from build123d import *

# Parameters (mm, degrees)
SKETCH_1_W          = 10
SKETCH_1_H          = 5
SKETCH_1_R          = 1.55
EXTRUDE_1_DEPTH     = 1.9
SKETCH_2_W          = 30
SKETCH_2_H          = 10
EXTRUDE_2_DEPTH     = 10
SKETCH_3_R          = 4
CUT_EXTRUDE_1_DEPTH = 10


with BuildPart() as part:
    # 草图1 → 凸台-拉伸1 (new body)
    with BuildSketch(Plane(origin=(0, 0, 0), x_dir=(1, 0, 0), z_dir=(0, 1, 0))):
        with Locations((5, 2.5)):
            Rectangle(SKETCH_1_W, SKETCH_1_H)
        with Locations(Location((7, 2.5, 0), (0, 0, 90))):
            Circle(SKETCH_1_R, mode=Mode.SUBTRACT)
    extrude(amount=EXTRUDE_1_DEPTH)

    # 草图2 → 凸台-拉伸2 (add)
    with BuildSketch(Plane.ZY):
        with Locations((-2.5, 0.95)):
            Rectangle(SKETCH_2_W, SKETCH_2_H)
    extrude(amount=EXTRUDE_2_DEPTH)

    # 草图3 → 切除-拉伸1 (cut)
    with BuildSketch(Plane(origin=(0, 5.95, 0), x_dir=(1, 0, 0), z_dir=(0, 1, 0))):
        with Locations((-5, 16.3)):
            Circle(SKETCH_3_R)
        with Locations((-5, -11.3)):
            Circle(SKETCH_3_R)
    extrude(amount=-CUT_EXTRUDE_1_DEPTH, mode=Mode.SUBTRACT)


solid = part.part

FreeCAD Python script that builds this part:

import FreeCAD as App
import Part
import Sketcher
Q = App.Units.Quantity


def add_polygon(sketch, points):
    """Adds a closed chain of lines whose ends are joined by coincident constraints."""
    first, n = sketch.GeometryCount, len(points)
    for a, b in zip(points, points[1:] + points[:1]):
        sketch.addGeometry(Part.LineSegment(App.Vector(*a, 0), App.Vector(*b, 0)), False)
    for i in range(n):
        sketch.addConstraint(Sketcher.Constraint("Coincident", first + i, 2, first + (i + 1) % n, 1))

doc = App.newDocument("Part")
body = doc.addObject("PartDesign::Body", "Body")

sketch1 = body.newObject("Sketcher::SketchObject", "Sketch")
sketch1.AttachmentSupport = (doc.getObject("XZ_Plane"), [""])
sketch1.MapMode = "FlatFace"
add_polygon(sketch1, [(0, -5), (0, 0), (10, 0), (10, -5)])
sketch1.addGeometry(Part.Circle(App.Vector(7, -2.5, 0), App.Vector(0, 0, 1), 1.6), False)
sketch1.addConstraint(Sketcher.Constraint("Vertical", 0))
sketch1.addConstraint(Sketcher.Constraint("Horizontal", 1))
sketch1.addConstraint(Sketcher.Constraint("Vertical", 2))
sketch1.addConstraint(Sketcher.Constraint("Horizontal", 3))
sketch1.addConstraint(Sketcher.Constraint("Coincident", 0, 2, -1, 1))
sketch1.addConstraint(Sketcher.Constraint("Diameter", 4, Q("3.1 mm")))
sketch1.addConstraint(Sketcher.Constraint("DistanceX", 1, 1, 1, 2, Q("10 mm")))
sketch1.addConstraint(Sketcher.Constraint("DistanceY", 0, 1, 0, 2, Q("5 mm")))
sketch1.addConstraint(Sketcher.Constraint("DistanceX", -1, 1, 4, 3, Q("7 mm")))
sketch1.addConstraint(Sketcher.Constraint("DistanceY", 4, 3, -1, 1, Q("2.5 mm")))
pad1 = body.newObject("PartDesign::Pad", "Pad")
pad1.Profile = sketch1
pad1.Length = 1.9
pad1.Reversed = True

sketch2 = body.newObject("Sketcher::SketchObject", "Sketch001")
sketch2.AttachmentSupport = (doc.getObject("YZ_Plane"), [""])
sketch2.MapMode = "FlatFace"
add_polygon(sketch2, [(6, -18), (-4, -18), (-4, 12), (6, 12)])
sketch2.addConstraint(Sketcher.Constraint("Horizontal", 0))
sketch2.addConstraint(Sketcher.Constraint("Vertical", 1))
sketch2.addConstraint(Sketcher.Constraint("Horizontal", 2))
sketch2.addConstraint(Sketcher.Constraint("Vertical", 3))
sketch2.addConstraint(Sketcher.Constraint("DistanceX", 0, 2, 0, 1, Q("10 mm")))
sketch2.addConstraint(Sketcher.Constraint("DistanceY", 1, 1, 1, 2, Q("30 mm")))
sketch2.addConstraint(Sketcher.Constraint("DistanceY", 0, 2, -1, 1, Q("17.5 mm")))
sketch2.addConstraint(Sketcher.Constraint("DistanceX", 0, 2, -1, 1, Q("4.05 mm")))
pad2 = body.newObject("PartDesign::Pad", "Pad001")
pad2.Profile = sketch2
pad2.Length = 10
pad2.Reversed = True

sketch3 = body.newObject("Sketcher::SketchObject", "Sketch002")
sketch3.AttachmentSupport = (doc.getObject("XZ_Plane"), [""])
sketch3.MapMode = "FlatFace"
sketch3.AttachmentOffset = App.Placement(App.Vector(0, 0, -5.95), App.Rotation())
sketch3.addGeometry(Part.Circle(App.Vector(-5, -16.3, 0), App.Vector(0, 0, 1), 4), False)
sketch3.addGeometry(Part.Circle(App.Vector(-5, 11.3, 0), App.Vector(0, 0, 1), 4), False)
sketch3.addConstraint(Sketcher.Constraint("Equal", 0, 1))
sketch3.addConstraint(Sketcher.Constraint("Vertical", 0, 3, 1, 3))
sketch3.addConstraint(Sketcher.Constraint("Diameter", 0, Q("8 mm")))
sketch3.addConstraint(Sketcher.Constraint("DistanceX", 0, 3, -1, 1, Q("5 mm")))
sketch3.addConstraint(Sketcher.Constraint("DistanceY", 0, 3, -1, 1, Q("16.3 mm")))
sketch3.addConstraint(Sketcher.Constraint("DistanceY", -1, 1, 1, 3, Q("11.3 mm")))
pocket1 = body.newObject("PartDesign::Pocket", "Pocket")
pocket1.Profile = sketch3
pocket1.Length = 10
pocket1.Reversed = True

doc.recompute()
